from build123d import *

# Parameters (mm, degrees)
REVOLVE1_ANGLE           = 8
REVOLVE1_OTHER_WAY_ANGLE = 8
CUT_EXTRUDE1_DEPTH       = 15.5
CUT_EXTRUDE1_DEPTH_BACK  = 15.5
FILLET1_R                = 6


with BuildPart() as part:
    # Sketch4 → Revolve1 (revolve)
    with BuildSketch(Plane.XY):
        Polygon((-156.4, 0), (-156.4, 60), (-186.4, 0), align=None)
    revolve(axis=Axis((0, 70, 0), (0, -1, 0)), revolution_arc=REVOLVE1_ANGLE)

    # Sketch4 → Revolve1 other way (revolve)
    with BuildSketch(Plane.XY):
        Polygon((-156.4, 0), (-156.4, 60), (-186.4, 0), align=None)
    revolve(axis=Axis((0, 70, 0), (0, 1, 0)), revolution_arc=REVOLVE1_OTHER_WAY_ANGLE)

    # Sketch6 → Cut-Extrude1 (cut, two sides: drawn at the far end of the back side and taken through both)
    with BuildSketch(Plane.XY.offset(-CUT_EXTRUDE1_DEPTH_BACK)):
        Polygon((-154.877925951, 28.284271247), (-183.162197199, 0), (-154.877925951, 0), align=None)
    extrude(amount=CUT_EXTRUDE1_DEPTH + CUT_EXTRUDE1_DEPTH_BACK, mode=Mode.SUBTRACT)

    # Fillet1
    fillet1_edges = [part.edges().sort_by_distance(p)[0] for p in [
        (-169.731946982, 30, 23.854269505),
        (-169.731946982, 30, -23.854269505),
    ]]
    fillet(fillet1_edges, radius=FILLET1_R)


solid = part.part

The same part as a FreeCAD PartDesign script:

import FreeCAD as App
import Part
import Sketcher


def edges_at(feature, points):
    """Names of the edges that pass closest to the given points."""
    edges = feature.Shape.Edges
    near = lambda p: min(range(len(edges)), key=lambda i: edges[i].distToShape(Part.Vertex(*p))[0])
    return sorted({f"Edge{near(p) + 1}" for p in points})


def add_polygon(sketch, points):
    """Adds a closed chain of lines whose ends are joined by coincident constraints."""
    first, n = sketch.GeometryCount, len(points)
    for a, b in zip(points, points[1:] + points[:1]):
        sketch.addGeometry(Part.LineSegment(App.Vector(*a, 0), App.Vector(*b, 0)), False)
    for i in range(n):
        sketch.addConstraint(Sketcher.Constraint("Coincident", first + i, 2, first + (i + 1) % n, 1))

doc = App.newDocument("Part")
body = doc.addObject("PartDesign::Body", "Body")

# Sketch on XY plane
sketch1 = body.newObject("Sketcher::SketchObject", "Sketch")
sketch1.AttachmentSupport = (doc.getObject("XY_Plane"), [""])
sketch1.MapMode = "FlatFace"
add_polygon(sketch1, [(-156, 0), (-156, 60), (-186, 0)])  # lines 0-2
sketch1.addConstraint(Sketcher.Constraint("Vertical", 0))
sketch1.addConstraint(Sketcher.Constraint("Horizontal", 2))
sketch1.addConstraint(Sketcher.Constraint("PointOnObject", 1, 2, -1))
sketch1.addConstraint(Sketcher.Constraint("DistanceX", 2, 1, 2, 2, 30.0))
sketch1.addConstraint(Sketcher.Constraint("DistanceY", 0, 1, 0, 2, 60.0))
sketch1.addConstraint(Sketcher.Constraint("DistanceX", 0, 2, -1, 1, 156.4))
revolution = body.newObject("PartDesign::Revolution", "Revolution")
revolution.Profile = sketch1
revolution.ReferenceAxis = (sketch1, ["V_Axis"])
revolution.Angle = 8
revolution.Reversed = True

# Sketch on XY plane
sketch2 = body.newObject("Sketcher::SketchObject", "Sketch001")
sketch2.AttachmentSupport = (doc.getObject("XY_Plane"), [""])
sketch2.MapMode = "FlatFace"
add_polygon(sketch2, [(-156, 0), (-156, 60), (-186, 0)])  # lines 0-2
sketch2.addConstraint(Sketcher.Constraint("Vertical", 0))
sketch2.addConstraint(Sketcher.Constraint("Horizontal", 2))
sketch2.addConstraint(Sketcher.Constraint("PointOnObject", 1, 2, -1))
sketch2.addConstraint(Sketcher.Constraint("DistanceX", 2, 1, 2, 2, 30.0))
sketch2.addConstraint(Sketcher.Constraint("DistanceY", 0, 1, 0, 2, 60.0))
sketch2.addConstraint(Sketcher.Constraint("DistanceX", 0, 2, -1, 1, 156.4))
revolution2 = body.newObject("PartDesign::Revolution", "Revolution001")
revolution2.Profile = sketch2
revolution2.ReferenceAxis = (sketch2, ["V_Axis"])
revolution2.Angle = 8

# Sketch on XY plane
sketch3 = body.newObject("Sketcher::SketchObject", "Sketch002")
sketch3.AttachmentSupport = (doc.getObject("XY_Plane"), [""])
sketch3.MapMode = "FlatFace"
add_polygon(sketch3, [(-155, 28), (-183, 0), (-155, 0)])  # lines 0-2
sketch3.addConstraint(Sketcher.Constraint("Horizontal", 1))
sketch3.addConstraint(Sketcher.Constraint("Vertical", 2))
sketch3.addConstraint(Sketcher.Constraint("PointOnObject", 0, 2, -1))
sketch3.addConstraint(Sketcher.Constraint("Equal", 1, 2))
sketch3.addConstraint(Sketcher.Constraint("Distance", 0, 40.0))
sketch3.addConstraint(Sketcher.Constraint("DistanceX", 0, 2, -1, 1, 183.162197))
pocket1 = body.newObject("PartDesign::Pocket", "Pocket")
pocket1.Profile = sketch3
pocket1.Type = "TwoLengths"
pocket1.Length = 15.5
pocket1.Length2 = 15.5
pocket1.Reversed = True
doc.recompute()

fillet = body.newObject("PartDesign::Fillet", "Fillet")
fillet.Base = (pocket1, edges_at(pocket1, [(-169.732, 30, 23.854), (-169.732, 30, -23.854)]))
fillet.Radius = 6

doc.recompute()
